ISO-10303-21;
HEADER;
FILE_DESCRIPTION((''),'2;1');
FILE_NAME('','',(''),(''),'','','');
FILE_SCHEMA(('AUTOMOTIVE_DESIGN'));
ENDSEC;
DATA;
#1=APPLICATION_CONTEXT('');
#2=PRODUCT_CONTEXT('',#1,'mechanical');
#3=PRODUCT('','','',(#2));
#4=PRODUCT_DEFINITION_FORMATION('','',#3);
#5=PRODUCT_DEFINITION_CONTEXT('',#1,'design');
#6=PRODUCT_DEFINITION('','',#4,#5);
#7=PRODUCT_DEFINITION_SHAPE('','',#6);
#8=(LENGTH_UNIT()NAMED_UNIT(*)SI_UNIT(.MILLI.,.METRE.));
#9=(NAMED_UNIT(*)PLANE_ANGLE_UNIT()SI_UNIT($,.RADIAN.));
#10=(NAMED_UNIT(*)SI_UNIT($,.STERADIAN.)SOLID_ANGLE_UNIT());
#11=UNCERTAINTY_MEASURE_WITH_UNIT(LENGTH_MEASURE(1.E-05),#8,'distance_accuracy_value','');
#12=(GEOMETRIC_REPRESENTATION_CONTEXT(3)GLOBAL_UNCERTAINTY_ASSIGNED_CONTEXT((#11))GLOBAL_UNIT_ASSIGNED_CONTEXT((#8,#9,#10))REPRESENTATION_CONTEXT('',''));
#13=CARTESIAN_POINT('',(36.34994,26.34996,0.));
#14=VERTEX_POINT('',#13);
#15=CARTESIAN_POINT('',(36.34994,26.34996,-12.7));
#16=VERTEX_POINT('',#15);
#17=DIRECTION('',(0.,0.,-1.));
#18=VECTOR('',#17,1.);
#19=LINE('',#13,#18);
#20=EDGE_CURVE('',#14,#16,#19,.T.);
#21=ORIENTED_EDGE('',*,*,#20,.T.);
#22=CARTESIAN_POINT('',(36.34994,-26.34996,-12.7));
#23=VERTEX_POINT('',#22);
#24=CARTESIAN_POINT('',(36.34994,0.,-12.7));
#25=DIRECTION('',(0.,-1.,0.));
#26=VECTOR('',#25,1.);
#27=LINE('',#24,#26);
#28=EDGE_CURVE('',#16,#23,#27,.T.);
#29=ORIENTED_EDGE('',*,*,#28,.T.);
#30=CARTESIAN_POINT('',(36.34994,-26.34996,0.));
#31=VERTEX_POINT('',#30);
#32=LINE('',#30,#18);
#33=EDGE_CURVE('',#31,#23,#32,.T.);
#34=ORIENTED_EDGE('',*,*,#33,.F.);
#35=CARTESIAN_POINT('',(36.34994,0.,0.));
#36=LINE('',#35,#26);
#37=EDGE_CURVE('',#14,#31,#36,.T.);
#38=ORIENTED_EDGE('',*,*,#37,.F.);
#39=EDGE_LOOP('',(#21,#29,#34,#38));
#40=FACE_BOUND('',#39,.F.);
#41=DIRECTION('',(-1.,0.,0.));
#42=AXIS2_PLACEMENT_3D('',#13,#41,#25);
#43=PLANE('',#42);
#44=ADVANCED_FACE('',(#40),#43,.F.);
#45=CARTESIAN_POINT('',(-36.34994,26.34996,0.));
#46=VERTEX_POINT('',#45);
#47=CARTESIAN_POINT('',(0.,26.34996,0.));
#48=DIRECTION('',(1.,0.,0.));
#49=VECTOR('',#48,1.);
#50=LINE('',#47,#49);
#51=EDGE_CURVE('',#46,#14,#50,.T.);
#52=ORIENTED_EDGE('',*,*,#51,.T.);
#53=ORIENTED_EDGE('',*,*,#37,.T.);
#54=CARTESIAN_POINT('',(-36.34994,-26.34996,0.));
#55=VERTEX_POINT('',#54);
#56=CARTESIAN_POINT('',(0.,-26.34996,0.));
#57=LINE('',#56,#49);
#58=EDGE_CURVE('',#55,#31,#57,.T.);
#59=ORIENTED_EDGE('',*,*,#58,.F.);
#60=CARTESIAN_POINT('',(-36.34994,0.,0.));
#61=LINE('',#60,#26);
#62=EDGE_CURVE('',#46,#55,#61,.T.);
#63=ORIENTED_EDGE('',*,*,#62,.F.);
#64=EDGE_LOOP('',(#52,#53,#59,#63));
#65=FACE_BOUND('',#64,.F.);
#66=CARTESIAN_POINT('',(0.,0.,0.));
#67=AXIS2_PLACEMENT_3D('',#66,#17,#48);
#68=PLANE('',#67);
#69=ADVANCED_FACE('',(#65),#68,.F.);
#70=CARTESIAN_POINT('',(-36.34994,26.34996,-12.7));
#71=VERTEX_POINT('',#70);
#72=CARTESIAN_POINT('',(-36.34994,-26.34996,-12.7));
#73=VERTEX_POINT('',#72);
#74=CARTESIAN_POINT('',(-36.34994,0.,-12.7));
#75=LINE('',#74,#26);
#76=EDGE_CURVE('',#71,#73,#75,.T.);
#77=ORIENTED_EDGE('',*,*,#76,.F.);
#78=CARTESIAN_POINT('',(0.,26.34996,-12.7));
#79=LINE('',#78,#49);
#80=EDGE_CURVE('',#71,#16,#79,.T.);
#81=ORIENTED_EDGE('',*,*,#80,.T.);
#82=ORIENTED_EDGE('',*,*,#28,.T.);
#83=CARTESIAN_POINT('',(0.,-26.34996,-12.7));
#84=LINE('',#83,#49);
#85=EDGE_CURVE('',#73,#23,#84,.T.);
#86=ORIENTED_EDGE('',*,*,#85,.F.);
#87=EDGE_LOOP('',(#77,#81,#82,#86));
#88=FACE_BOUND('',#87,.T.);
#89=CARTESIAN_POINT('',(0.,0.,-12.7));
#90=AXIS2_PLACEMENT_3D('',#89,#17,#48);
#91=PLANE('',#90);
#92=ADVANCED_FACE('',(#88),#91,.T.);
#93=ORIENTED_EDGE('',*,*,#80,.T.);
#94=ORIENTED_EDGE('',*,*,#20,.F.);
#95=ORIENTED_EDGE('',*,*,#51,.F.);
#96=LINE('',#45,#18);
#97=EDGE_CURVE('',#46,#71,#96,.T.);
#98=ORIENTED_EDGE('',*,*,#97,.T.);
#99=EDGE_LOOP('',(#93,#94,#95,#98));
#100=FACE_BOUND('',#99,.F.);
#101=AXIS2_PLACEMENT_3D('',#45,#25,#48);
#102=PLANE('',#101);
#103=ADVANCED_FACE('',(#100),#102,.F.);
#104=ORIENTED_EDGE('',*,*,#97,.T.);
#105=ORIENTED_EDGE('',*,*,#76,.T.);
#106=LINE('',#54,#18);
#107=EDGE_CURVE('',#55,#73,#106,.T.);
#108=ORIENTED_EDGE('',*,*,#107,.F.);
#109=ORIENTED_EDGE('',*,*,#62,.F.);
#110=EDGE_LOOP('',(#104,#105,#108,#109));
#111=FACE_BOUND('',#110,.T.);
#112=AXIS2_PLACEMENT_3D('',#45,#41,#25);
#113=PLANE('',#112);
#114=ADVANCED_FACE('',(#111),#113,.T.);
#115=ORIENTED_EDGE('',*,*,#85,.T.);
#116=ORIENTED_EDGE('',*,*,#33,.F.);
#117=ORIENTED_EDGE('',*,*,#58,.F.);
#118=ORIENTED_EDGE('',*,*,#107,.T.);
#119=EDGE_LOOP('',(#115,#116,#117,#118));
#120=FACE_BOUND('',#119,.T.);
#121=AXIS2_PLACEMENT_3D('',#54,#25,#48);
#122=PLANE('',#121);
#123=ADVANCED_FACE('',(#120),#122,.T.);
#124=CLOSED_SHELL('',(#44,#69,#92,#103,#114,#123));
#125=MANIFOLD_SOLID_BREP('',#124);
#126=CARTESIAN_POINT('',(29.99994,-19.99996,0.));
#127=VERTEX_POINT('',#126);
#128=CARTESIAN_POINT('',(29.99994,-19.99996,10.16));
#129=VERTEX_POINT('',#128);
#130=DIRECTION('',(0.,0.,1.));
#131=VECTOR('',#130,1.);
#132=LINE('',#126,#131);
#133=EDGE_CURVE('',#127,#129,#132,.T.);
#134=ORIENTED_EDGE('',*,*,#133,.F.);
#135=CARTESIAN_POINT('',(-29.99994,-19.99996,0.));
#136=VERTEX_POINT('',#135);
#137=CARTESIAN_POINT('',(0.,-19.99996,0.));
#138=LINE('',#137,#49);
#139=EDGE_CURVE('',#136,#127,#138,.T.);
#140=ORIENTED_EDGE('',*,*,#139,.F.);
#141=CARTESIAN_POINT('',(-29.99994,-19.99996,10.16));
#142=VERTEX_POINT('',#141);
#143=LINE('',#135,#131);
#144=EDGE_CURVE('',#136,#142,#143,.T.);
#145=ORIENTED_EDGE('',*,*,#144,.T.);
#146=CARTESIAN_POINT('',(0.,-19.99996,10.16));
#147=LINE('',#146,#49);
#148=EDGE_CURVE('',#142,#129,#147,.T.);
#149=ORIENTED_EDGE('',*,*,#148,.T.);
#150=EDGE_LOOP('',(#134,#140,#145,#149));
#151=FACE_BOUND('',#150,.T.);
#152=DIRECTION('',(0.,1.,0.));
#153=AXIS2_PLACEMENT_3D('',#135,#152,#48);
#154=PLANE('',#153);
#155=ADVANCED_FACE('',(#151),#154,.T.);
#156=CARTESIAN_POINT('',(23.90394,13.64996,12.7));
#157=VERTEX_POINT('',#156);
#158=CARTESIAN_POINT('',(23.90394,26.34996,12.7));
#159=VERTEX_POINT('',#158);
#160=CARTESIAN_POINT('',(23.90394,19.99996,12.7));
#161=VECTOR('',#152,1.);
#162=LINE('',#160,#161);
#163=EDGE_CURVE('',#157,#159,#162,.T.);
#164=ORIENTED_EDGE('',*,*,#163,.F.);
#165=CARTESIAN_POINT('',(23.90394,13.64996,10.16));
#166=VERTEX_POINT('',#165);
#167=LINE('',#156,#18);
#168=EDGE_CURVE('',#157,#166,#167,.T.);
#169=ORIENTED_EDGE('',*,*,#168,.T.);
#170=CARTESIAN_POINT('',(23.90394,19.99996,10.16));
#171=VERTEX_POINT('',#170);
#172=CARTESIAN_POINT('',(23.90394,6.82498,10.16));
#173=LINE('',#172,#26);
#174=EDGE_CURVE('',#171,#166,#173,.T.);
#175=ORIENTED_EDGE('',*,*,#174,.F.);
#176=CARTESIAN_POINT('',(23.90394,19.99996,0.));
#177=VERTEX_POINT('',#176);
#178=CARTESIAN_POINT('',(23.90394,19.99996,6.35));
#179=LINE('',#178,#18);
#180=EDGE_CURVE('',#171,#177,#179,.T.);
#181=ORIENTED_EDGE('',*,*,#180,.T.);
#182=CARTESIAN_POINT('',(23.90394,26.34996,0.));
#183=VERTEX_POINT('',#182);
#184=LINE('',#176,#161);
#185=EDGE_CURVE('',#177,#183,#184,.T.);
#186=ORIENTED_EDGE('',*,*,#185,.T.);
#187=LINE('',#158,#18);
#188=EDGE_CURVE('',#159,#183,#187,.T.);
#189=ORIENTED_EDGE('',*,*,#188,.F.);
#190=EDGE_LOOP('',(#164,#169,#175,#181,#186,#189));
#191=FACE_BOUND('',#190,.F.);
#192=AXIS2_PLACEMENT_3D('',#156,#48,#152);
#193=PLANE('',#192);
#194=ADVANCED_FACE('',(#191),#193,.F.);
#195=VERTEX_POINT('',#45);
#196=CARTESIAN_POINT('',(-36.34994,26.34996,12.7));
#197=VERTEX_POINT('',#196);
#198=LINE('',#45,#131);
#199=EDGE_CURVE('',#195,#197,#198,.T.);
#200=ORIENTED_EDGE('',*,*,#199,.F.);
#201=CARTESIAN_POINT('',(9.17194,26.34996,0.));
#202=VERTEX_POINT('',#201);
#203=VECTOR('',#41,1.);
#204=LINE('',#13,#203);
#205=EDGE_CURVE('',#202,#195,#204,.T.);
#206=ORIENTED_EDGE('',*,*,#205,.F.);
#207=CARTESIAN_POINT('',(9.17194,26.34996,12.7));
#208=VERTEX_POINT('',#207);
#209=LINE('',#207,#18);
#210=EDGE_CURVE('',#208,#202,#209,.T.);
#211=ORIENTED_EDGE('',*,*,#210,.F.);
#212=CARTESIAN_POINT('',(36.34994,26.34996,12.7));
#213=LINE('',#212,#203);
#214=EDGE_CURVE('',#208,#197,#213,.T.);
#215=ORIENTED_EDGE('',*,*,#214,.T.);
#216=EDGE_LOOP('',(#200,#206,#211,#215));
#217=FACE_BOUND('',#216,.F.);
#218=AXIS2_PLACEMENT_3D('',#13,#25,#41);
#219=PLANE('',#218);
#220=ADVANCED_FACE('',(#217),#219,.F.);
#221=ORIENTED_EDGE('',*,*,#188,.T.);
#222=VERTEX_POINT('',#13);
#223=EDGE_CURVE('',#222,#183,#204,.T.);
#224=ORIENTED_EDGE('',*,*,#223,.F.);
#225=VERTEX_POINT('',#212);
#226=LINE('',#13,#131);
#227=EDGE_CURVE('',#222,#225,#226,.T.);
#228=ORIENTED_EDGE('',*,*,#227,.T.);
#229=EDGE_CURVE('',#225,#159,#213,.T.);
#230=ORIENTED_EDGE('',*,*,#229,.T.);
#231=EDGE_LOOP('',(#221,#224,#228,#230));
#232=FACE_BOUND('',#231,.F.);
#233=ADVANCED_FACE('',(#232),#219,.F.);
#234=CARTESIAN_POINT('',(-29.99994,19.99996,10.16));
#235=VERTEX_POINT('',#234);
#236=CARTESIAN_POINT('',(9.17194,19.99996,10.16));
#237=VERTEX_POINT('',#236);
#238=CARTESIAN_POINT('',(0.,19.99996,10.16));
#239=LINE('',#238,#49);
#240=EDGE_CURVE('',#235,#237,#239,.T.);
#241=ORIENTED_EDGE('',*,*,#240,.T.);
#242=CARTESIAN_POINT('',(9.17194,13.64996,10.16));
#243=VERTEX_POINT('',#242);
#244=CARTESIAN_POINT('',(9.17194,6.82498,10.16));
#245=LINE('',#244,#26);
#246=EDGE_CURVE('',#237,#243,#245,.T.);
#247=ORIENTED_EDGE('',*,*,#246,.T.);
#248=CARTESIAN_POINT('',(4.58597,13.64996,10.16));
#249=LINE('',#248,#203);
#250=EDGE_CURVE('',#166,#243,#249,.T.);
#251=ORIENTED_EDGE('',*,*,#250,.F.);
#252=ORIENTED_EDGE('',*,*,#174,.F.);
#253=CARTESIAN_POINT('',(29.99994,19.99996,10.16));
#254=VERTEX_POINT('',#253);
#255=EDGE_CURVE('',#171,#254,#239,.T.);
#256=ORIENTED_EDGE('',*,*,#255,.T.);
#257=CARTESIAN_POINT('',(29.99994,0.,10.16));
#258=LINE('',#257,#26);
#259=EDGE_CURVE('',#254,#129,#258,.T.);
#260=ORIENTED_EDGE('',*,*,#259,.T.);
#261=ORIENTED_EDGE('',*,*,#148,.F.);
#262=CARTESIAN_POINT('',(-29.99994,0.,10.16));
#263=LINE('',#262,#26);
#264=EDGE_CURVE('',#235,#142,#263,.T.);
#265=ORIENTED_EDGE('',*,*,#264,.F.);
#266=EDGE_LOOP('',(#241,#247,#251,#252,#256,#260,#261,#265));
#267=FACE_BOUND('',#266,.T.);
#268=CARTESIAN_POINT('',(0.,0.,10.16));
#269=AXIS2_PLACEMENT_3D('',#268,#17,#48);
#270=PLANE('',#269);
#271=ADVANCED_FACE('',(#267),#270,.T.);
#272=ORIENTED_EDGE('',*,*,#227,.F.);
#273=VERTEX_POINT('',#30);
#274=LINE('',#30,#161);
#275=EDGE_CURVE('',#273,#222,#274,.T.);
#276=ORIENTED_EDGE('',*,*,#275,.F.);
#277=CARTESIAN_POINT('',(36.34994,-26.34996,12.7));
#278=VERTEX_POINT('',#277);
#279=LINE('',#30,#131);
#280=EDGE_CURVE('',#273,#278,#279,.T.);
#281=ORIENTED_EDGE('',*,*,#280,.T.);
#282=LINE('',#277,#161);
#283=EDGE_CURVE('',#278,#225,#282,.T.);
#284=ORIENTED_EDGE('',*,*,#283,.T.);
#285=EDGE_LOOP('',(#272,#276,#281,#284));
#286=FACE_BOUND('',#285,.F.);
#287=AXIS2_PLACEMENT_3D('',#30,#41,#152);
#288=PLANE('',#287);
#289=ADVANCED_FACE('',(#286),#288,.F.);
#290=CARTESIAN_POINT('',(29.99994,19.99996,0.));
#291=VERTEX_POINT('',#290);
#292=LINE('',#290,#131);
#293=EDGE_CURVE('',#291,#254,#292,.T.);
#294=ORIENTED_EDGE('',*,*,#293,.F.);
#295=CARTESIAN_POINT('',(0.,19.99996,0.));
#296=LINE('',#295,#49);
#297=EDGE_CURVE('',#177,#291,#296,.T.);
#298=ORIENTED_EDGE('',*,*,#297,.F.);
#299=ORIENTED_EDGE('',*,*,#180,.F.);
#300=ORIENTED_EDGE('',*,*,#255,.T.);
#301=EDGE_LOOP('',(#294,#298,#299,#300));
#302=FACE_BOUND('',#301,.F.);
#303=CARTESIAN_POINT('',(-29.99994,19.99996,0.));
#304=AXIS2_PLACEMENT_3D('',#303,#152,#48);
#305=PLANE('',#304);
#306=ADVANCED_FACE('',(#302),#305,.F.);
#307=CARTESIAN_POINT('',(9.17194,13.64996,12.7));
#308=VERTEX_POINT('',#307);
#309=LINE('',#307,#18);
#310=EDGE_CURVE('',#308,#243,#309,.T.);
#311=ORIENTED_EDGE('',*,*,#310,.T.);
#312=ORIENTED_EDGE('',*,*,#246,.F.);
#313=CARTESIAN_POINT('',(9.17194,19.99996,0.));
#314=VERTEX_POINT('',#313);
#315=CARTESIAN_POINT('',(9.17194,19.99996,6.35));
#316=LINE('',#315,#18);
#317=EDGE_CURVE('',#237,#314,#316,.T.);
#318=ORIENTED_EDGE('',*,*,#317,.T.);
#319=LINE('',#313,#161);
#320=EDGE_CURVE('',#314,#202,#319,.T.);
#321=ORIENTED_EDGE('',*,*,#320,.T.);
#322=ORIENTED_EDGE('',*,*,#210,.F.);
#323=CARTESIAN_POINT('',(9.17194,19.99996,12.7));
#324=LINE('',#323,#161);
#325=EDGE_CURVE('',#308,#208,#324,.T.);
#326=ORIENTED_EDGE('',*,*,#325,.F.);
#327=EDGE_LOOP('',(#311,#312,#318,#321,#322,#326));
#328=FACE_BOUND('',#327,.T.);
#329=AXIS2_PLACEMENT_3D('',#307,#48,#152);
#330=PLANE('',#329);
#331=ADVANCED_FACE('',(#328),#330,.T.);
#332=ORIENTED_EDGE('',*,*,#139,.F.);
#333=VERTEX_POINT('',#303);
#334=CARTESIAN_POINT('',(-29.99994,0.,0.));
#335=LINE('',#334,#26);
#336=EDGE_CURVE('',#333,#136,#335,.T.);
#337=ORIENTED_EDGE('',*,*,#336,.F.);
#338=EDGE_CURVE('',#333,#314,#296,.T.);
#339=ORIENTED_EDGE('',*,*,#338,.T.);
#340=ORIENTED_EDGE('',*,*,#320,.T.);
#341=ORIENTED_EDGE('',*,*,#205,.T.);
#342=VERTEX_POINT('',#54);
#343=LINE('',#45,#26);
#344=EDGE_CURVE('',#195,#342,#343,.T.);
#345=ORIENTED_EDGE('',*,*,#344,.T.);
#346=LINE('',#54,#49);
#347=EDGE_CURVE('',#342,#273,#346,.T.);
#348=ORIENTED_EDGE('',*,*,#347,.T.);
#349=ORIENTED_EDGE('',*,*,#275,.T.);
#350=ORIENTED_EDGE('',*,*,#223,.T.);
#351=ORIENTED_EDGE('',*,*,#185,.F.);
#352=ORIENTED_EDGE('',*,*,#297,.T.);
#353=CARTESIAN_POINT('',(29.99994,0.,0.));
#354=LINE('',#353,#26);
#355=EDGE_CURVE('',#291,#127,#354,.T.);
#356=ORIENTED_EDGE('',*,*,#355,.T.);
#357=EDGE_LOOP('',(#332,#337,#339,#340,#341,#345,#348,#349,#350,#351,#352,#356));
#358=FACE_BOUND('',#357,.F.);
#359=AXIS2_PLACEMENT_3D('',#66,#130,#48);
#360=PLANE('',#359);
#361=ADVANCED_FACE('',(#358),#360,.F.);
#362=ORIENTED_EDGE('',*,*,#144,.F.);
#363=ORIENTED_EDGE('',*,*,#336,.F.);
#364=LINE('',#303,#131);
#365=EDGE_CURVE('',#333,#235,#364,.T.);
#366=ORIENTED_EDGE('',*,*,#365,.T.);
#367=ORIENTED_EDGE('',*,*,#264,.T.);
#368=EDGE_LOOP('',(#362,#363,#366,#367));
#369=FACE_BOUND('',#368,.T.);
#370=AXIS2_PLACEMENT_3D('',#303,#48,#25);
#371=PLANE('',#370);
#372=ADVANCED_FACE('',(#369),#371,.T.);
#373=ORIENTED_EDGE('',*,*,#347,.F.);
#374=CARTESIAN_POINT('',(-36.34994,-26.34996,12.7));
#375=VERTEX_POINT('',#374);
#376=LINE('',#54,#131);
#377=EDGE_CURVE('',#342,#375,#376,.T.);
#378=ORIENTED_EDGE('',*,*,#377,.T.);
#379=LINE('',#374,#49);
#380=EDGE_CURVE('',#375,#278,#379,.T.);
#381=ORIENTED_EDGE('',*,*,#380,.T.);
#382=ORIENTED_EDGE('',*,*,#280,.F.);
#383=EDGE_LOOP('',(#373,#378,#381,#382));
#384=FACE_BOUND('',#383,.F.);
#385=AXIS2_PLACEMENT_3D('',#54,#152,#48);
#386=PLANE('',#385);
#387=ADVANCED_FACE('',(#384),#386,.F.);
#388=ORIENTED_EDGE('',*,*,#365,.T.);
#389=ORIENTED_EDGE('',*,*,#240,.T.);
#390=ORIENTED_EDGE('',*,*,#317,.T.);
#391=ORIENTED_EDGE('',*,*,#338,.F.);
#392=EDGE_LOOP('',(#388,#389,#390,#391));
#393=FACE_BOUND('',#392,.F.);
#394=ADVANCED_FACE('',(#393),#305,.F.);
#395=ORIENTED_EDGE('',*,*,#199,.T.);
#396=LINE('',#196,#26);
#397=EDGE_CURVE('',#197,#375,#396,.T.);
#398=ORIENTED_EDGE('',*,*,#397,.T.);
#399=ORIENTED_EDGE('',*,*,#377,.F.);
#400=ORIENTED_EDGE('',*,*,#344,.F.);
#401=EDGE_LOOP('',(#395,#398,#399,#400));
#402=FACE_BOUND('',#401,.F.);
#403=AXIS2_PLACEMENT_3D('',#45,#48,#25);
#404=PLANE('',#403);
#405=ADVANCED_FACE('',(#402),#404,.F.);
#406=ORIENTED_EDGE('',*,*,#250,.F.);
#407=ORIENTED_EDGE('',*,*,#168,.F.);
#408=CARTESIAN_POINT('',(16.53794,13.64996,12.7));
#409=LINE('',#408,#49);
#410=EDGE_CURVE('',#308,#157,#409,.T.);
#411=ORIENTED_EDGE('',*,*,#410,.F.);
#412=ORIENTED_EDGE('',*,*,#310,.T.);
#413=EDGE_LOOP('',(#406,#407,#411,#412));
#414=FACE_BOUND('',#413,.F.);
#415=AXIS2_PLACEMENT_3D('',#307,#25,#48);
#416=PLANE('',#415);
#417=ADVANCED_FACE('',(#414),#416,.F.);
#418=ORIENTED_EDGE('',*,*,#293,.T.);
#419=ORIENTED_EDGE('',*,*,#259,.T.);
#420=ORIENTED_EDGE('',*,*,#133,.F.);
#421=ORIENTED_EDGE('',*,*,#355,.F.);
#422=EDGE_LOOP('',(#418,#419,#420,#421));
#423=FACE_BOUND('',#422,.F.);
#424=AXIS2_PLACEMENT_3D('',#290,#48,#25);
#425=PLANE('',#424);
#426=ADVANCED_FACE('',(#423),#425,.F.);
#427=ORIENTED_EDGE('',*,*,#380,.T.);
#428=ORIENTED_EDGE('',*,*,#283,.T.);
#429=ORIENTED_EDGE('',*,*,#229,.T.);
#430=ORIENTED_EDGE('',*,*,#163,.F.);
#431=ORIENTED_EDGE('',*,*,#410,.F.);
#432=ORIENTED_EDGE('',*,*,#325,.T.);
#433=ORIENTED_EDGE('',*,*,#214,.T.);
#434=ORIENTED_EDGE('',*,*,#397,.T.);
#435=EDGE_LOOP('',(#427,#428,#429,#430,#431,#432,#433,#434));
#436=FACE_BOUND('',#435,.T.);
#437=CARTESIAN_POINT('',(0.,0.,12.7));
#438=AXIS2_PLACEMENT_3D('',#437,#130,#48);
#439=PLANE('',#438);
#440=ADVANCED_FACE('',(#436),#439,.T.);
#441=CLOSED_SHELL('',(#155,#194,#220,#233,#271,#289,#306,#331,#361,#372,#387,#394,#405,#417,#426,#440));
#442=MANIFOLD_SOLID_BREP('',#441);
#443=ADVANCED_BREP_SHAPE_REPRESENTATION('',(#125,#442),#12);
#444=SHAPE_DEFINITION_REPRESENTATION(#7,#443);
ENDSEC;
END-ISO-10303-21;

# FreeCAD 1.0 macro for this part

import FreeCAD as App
import Part
import Sketcher

V = App.Vector
Q = App.Units.Quantity


def add_polygon(sketch, points):
    """Adds a closed chain of lines whose ends are joined by coincident constraints."""
    first, n = sketch.GeometryCount, len(points)
    for a, b in zip(points, points[1:] + points[:1]):
        sketch.addGeometry(Part.LineSegment(App.Vector(*a, 0), App.Vector(*b, 0)), False)
    for i in range(n):
        sketch.addConstraint(Sketcher.Constraint("Coincident", first + i, 2, first + (i + 1) % n, 1))

doc = App.newDocument("Part")
body = doc.addObject("PartDesign::Body", "Body")

# Sketch on XY plane
sketch1 = doc.addObject("Sketcher::SketchObject", "Sketch")
body.addObject(sketch1)
sketch1.AttachmentSupport = (doc.XY_Plane, [""])
sketch1.MapMode = "FlatFace"
add_polygon(sketch1, [(36, 26), (-36, 26), (-36, -26), (36, -26)])  # lines 0-3
sketch1.addConstraint([
    Sketcher.Constraint("Horizontal", 0),
    Sketcher.Constraint("Vertical", 1),
    Sketcher.Constraint("Horizontal", 2),
    Sketcher.Constraint("Vertical", 3),
    Sketcher.Constraint("Symmetric", 0, 2, 2, 2, -1, 1),
    Sketcher.Constraint("DistanceX", 0, 2, 0, 1, Q("2.8622 in")),
    Sketcher.Constraint("DistanceY", 1, 2, 1, 1, Q("2.0748 in")),
])
pad1 = doc.addObject("PartDesign::Pad", "Pad")
body.addObject(pad1)
pad1.Profile = sketch1
pad1.Length = Q("0.5 in")

# Sketch on XY plane
sketch2 = doc.addObject("Sketcher::SketchObject", "Sketch001")
body.addObject(sketch2)
sketch2.AttachmentSupport = (doc.XY_Plane, [""])
sketch2.MapMode = "FlatFace"
add_polygon(sketch2, [(-30, -20), (-30, 20), (30, 20), (30, -20)])  # lines 0-3
sketch2.addConstraint([
    Sketcher.Constraint("Vertical", 0),
    Sketcher.Constraint("Horizontal", 1),
    Sketcher.Constraint("Vertical", 2),
    Sketcher.Constraint("Horizontal", 3),
    Sketcher.Constraint("Symmetric", 0, 2, 2, 2, -1, 1),
    Sketcher.Constraint("DistanceX", 1, 1, 1, 2, Q("2.3622 in")),
    Sketcher.Constraint("DistanceY", 0, 1, 0, 2, Q("1.5748 in")),
])
pocket1 = doc.addObject("PartDesign::Pocket", "Pocket")
body.addObject(pocket1)
pocket1.Profile = sketch2
pocket1.Length = Q("0.4 in")
pocket1.Reversed = True

# Sketch on XY plane
sketch3 = doc.addObject("Sketcher::SketchObject", "Sketch002")
body.addObject(sketch3)
sketch3.AttachmentSupport = (doc.XY_Plane, [""])
sketch3.MapMode = "FlatFace"
sketch3.AttachmentOffset = App.Placement(V(0, 0, 0.5 * 25.4), App.Rotation())
add_polygon(sketch3, [(9, 26), (9, 14), (24, 14), (24, 26)])  # lines 0-3
sketch3.addConstraint([
    Sketcher.Constraint("Vertical", 0),
    Sketcher.Constraint("Horizontal", 1),
    Sketcher.Constraint("Vertical", 2),
    Sketcher.Constraint("Horizontal", 3),
    Sketcher.Constraint("DistanceY", 0, 2, 0, 1, Q("0.5 in")),
    Sketcher.Constraint("DistanceX", 1, 1, 1, 2, Q("0.58 in")),
    Sketcher.Constraint("DistanceX", -1, 1, 0, 2, Q("0.3611 in")),
    Sketcher.Constraint("DistanceY", -1, 1, 0, 2, Q("0.5374 in")),
])
pocket2 = doc.addObject("PartDesign::Pocket", "Pocket001")
body.addObject(pocket2)
pocket2.Profile = sketch3
pocket2.Type = "ThroughAll"
body2 = doc.addObject("PartDesign::Body", "Body001")

# Sketch on XY plane
sketch4 = doc.addObject("Sketcher::SketchObject", "Sketch003")
body2.addObject(sketch4)
sketch4.AttachmentSupport = (doc.getObject("XY_Plane001"), [""])
sketch4.MapMode = "FlatFace"
add_polygon(sketch4, [(-36, -26), (-36, 26), (36, 26), (36, -26)])  # lines 0-3
sketch4.addConstraint([
    Sketcher.Constraint("Vertical", 0),
    Sketcher.Constraint("Horizontal", 1),
    Sketcher.Constraint("Vertical", 2),
    Sketcher.Constraint("Horizontal", 3),
    Sketcher.Constraint("Symmetric", 0, 2, 2, 2, -1, 1),
    Sketcher.Constraint("DistanceX", 1, 1, 1, 2, Q("2.8622 in")),
    Sketcher.Constraint("DistanceY", 0, 1, 0, 2, Q("2.0748 in")),
])
pad2 = doc.addObject("PartDesign::Pad", "Pad001")
body2.addObject(pad2)
pad2.Profile = sketch4
pad2.Length = Q("0.5 in")
pad2.Reversed = True

doc.recompute()
